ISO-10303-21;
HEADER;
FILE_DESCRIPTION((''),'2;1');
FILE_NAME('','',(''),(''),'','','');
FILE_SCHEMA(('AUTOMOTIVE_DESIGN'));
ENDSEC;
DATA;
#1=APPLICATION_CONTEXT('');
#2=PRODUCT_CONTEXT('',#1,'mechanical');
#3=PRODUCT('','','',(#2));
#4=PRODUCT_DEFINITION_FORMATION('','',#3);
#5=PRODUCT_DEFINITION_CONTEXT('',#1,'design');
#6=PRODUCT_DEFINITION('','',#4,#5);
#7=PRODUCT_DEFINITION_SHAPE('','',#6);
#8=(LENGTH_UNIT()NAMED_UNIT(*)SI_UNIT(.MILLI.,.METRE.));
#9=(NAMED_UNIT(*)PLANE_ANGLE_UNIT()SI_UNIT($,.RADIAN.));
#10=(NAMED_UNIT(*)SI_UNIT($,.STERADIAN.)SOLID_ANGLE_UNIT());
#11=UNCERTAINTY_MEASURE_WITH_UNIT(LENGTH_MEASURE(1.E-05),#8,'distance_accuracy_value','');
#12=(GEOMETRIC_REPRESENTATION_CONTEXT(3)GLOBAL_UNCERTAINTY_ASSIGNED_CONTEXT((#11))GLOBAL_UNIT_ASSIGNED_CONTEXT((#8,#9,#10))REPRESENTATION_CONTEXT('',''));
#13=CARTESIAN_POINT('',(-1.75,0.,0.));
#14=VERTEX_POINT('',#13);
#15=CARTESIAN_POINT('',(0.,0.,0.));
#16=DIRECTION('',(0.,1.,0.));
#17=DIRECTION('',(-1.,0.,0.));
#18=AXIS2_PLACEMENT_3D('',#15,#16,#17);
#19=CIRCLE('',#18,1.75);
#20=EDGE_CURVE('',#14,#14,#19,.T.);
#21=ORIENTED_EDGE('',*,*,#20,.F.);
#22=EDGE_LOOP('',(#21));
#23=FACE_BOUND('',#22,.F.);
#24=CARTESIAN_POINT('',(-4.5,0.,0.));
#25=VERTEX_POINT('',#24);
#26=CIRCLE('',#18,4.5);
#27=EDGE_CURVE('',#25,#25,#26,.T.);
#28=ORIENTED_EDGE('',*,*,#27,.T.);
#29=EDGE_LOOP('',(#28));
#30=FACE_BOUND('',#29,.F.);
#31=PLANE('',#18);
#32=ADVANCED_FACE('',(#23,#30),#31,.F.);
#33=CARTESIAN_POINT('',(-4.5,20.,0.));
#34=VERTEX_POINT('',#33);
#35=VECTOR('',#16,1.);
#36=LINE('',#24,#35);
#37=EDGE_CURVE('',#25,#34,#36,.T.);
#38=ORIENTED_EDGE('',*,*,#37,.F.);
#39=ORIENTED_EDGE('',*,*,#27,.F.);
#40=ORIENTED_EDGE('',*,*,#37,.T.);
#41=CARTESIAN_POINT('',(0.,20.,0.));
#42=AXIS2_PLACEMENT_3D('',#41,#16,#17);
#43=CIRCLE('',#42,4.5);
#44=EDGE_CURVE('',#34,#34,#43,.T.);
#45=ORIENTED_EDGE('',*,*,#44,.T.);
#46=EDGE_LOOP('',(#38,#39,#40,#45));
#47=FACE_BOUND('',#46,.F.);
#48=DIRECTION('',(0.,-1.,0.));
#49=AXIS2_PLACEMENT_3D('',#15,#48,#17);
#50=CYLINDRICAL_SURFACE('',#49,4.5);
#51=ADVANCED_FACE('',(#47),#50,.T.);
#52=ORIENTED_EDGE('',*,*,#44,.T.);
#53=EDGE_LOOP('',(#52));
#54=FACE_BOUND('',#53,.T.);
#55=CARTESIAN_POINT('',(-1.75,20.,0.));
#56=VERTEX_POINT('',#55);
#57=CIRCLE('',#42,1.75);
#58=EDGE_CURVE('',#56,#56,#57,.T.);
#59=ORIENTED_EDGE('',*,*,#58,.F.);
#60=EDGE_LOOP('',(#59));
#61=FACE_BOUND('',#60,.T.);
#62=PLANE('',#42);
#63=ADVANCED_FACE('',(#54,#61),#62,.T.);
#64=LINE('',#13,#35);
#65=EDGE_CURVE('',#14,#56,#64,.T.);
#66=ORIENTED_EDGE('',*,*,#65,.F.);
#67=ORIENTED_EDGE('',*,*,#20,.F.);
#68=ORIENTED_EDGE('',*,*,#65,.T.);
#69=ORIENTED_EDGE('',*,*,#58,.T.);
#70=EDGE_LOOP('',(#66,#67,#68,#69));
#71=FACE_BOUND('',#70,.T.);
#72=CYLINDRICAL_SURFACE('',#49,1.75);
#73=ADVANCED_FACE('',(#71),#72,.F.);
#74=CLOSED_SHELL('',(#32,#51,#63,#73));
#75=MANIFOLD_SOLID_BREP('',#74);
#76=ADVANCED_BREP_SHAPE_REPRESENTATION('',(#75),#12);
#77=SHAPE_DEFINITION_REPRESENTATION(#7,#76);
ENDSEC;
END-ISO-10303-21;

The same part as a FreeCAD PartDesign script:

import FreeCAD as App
import Part
import Sketcher
from FreeCAD import Vector

doc = App.newDocument("Part")
body = doc.addObject("PartDesign::Body", "Body")

sketch1 = doc.addObject("Sketcher::SketchObject", "Sketch")
body.addObject(sketch1)
sketch1.AttachmentSupport = (doc.XZ_Plane, [""])
sketch1.MapMode = "FlatFace"
sketch1.addGeometry(Part.Circle(Vector(0, 0, 0), Vector(0, 0, 1), 4.5), False)
sketch1.addGeometry(Part.Circle(Vector(0, 0, 0), Vector(0, 0, 1), 1.8), False)
sketch1.addConstraint(Sketcher.Constraint("Coincident", 0, 3, -1, 1))
sketch1.addConstraint(Sketcher.Constraint("Coincident", 1, 3, -1, 1))
sketch1.addConstraint(Sketcher.Constraint("Diameter", 0, 9.0))
sketch1.addConstraint(Sketcher.Constraint("Diameter", 1, 3.5))
pad1 = doc.addObject("PartDesign::Pad", "Pad")
body.addObject(pad1)
pad1.Profile = sketch1
pad1.Length = 20
pad1.Reversed = True

doc.recompute()
